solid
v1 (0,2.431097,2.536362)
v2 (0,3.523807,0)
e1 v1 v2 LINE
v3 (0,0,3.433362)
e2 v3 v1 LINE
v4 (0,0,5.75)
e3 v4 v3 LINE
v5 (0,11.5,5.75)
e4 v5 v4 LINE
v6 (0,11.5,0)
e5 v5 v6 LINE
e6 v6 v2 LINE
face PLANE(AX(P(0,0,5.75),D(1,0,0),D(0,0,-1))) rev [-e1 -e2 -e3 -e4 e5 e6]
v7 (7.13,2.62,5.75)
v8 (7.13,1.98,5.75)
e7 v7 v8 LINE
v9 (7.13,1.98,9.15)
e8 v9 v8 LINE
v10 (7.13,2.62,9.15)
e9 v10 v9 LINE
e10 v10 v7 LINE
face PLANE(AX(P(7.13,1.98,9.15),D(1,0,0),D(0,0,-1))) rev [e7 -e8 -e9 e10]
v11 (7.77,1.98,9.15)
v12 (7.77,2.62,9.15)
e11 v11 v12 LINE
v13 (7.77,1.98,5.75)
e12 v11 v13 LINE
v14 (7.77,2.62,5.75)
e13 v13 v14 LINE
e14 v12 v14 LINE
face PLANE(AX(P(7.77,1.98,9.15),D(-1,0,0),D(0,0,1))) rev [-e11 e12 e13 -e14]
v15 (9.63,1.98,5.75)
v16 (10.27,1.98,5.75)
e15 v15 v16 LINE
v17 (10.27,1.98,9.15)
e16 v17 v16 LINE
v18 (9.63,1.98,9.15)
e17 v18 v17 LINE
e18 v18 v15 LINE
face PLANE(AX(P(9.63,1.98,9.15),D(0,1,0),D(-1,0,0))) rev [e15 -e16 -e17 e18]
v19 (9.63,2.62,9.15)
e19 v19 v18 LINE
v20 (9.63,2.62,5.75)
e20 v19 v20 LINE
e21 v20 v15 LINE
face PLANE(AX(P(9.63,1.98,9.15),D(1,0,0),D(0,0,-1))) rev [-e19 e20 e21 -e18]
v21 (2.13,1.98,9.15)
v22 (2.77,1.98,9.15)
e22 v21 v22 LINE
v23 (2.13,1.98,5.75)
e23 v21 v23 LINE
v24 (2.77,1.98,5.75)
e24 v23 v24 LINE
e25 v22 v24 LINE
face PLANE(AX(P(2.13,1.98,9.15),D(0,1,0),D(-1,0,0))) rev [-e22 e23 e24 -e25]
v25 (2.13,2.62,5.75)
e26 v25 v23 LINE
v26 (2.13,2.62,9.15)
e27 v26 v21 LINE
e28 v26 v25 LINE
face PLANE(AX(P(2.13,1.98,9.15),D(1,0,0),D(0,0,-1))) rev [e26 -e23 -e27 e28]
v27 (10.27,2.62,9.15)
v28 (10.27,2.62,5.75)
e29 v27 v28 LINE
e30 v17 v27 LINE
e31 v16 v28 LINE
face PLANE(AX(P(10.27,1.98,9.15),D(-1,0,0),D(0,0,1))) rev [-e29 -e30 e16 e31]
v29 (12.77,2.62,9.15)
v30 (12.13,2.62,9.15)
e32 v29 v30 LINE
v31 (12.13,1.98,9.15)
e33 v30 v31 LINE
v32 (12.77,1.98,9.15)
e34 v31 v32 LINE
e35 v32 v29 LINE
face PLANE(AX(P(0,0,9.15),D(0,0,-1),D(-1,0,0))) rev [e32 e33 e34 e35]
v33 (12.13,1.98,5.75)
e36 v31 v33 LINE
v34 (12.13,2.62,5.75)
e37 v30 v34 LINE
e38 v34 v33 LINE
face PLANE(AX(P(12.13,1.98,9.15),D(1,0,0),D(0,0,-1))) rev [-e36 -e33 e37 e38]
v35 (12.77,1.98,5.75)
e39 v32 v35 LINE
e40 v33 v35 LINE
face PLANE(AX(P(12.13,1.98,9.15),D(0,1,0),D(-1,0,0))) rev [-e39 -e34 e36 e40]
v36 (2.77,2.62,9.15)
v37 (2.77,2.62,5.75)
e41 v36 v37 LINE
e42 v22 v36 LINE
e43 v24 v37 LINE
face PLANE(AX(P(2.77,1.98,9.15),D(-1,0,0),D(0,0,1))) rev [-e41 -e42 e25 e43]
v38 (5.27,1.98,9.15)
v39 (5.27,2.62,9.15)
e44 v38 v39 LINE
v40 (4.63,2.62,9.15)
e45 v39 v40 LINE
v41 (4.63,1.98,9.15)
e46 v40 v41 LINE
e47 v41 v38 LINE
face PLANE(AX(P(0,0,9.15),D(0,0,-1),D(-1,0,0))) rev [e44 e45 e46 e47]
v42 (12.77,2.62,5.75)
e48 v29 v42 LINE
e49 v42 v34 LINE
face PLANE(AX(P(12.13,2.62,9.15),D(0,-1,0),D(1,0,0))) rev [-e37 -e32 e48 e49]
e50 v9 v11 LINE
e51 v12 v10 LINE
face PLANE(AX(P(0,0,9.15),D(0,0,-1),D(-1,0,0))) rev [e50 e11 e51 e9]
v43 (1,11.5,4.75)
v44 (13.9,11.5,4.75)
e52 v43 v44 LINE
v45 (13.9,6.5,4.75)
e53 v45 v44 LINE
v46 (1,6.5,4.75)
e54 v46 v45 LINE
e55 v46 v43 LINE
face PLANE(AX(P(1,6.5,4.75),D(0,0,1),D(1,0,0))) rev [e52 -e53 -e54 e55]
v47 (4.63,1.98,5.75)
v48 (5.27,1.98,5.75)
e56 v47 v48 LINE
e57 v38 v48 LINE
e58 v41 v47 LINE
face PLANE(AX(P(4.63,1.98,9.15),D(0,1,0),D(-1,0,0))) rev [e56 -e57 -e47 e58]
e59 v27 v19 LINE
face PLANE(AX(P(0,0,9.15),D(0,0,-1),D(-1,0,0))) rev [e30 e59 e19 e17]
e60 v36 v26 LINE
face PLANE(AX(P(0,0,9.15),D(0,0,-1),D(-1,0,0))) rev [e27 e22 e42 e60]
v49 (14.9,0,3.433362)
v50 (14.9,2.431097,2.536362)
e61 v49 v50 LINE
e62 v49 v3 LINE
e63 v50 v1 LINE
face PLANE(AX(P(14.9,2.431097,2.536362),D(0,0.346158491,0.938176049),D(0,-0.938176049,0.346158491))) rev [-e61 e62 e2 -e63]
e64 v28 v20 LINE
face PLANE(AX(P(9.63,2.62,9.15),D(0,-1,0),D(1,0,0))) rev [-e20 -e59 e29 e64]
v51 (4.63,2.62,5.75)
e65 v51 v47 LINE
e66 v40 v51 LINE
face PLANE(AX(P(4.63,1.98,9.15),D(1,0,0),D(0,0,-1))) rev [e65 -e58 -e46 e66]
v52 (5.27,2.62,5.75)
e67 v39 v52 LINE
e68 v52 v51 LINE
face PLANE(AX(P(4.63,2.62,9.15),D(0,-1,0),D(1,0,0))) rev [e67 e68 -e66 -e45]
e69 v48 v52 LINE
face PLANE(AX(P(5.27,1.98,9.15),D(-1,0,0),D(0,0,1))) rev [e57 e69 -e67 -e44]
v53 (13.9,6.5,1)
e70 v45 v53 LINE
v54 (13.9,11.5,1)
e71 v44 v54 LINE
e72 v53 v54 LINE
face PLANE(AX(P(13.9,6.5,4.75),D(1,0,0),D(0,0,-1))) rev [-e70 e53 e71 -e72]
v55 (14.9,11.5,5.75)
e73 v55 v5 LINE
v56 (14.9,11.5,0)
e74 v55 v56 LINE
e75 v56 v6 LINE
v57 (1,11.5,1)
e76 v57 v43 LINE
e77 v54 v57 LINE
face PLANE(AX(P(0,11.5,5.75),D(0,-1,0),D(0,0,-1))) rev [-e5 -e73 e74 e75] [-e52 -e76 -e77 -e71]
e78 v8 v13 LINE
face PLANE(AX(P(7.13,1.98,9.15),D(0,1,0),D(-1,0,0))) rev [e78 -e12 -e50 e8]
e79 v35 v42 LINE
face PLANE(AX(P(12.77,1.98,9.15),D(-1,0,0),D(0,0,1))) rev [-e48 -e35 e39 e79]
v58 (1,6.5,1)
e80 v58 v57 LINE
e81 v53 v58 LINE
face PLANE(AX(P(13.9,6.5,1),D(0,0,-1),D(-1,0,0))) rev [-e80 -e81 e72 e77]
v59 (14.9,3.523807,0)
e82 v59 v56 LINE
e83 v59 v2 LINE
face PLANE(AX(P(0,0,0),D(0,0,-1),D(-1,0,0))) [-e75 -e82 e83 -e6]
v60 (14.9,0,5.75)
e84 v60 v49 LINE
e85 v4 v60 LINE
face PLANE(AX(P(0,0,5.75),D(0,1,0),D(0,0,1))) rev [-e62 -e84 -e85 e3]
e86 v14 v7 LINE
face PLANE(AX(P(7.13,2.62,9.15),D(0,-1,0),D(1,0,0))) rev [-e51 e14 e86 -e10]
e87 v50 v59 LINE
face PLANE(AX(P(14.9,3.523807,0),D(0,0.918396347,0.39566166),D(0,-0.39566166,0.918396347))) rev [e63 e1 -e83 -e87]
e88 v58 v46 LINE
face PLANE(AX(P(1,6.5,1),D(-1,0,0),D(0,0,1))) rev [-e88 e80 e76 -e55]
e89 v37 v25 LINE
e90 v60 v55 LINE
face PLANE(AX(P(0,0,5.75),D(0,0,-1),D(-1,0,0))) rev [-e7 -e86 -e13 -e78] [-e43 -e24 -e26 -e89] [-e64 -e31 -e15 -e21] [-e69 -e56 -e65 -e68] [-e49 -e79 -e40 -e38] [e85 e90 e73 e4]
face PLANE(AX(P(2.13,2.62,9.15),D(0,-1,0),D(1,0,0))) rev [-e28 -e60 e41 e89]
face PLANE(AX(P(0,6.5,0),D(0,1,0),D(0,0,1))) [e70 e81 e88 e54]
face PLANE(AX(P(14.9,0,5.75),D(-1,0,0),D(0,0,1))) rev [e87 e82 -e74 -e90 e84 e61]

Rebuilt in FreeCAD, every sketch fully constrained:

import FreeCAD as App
import Part
import Sketcher
from FreeCAD import Vector
Q = App.Units.Quantity

doc = App.newDocument("Part")
body = doc.addObject("PartDesign::Body", "Body")

# Sketch on XY plane
sketch1 = body.newObject("Sketcher::SketchObject", "Sketch")
sketch1.AttachmentSupport = (doc.getObject("XY_Plane"), [""])
sketch1.MapMode = "FlatFace"
sketch1.addGeometry([
    Part.LineSegment(Vector(0, 12, 0), Vector(0, 0, 0)),
    Part.LineSegment(Vector(0, 0, 0), Vector(15, 0, 0)),
    Part.LineSegment(Vector(15, 0, 0), Vector(15, 12, 0)),
    Part.LineSegment(Vector(15, 12, 0), Vector(0, 12, 0)),
], False)
sketch1.addConstraint([
    Sketcher.Constraint("Coincident", 0, 2, 1, 1),
    Sketcher.Constraint("Coincident", 1, 2, 2, 1),
    Sketcher.Constraint("Coincident", 2, 2, 3, 1),
    Sketcher.Constraint("Coincident", 3, 2, 0, 1),
    Sketcher.Constraint("Vertical", 0),
    Sketcher.Constraint("Horizontal", 1),
    Sketcher.Constraint("Vertical", 2),
    Sketcher.Constraint("Horizontal", 3),
    Sketcher.Constraint("Coincident", 0, 2, -1, 1),
    Sketcher.Constraint("DistanceX", 1, 1, 1, 2, Q("14.9 mm")),
    Sketcher.Constraint("DistanceY", 0, 2, 0, 1, Q("11.5 mm")),
])
pad1 = body.newObject("PartDesign::Pad", "Pad")
pad1.Profile = sketch1
pad1.Length = 5.75

# Sketch on XY plane
sketch2 = body.newObject("Sketcher::SketchObject", "Sketch001")
sketch2.AttachmentSupport = (doc.getObject("XY_Plane"), [""])
sketch2.MapMode = "FlatFace"
sketch2.AttachmentOffset = App.Placement(Vector(0, 0, 5.75), App.Rotation())
sketch2.addGeometry([
    Part.LineSegment(Vector(4.6, 2.6, 0), Vector(4.6, 2, 0)),  # 0
    Part.LineSegment(Vector(4.6, 2, 0), Vector(5.3, 2, 0)),  # 1
    Part.LineSegment(Vector(5.3, 2, 0), Vector(5.3, 2.6, 0)),  # 2
    Part.LineSegment(Vector(5.3, 2.6, 0), Vector(4.6, 2.6, 0)),  # 3
    Part.LineSegment(Vector(2.1, 2.6, 0), Vector(2.1, 2, 0)),  # 4
    Part.LineSegment(Vector(2.1, 2, 0), Vector(2.8, 2, 0)),  # 5
    Part.LineSegment(Vector(2.8, 2, 0), Vector(2.8, 2.6, 0)),  # 6
    Part.LineSegment(Vector(2.8, 2.6, 0), Vector(2.1, 2.6, 0)),  # 7
    Part.LineSegment(Vector(7.1, 2.6, 0), Vector(7.1, 2, 0)),  # 8
    Part.LineSegment(Vector(7.1, 2, 0), Vector(7.8, 2, 0)),  # 9
    Part.LineSegment(Vector(7.8, 2, 0), Vector(7.8, 2.6, 0)),  # 10
    Part.LineSegment(Vector(7.8, 2.6, 0), Vector(7.1, 2.6, 0)),  # 11
    Part.LineSegment(Vector(9.6, 2.6, 0), Vector(9.6, 2, 0)),  # 12
    Part.LineSegment(Vector(9.6, 2, 0), Vector(10.3, 2, 0)),  # 13
    Part.LineSegment(Vector(10.3, 2, 0), Vector(10.3, 2.6, 0)),  # 14
    Part.LineSegment(Vector(10.3, 2.6, 0), Vector(9.6, 2.6, 0)),  # 15
    Part.LineSegment(Vector(12.1, 2.6, 0), Vector(12.1, 2, 0)),  # 16
    Part.LineSegment(Vector(12.1, 2, 0), Vector(12.8, 2, 0)),  # 17
    Part.LineSegment(Vector(12.8, 2, 0), Vector(12.8, 2.6, 0)),  # 18
    Part.LineSegment(Vector(12.8, 2.6, 0), Vector(12.1, 2.6, 0)),  # 19
], False)
sketch2.addConstraint([
    Sketcher.Constraint("Coincident", 0, 2, 1, 1),
    Sketcher.Constraint("Coincident", 1, 2, 2, 1),
    Sketcher.Constraint("Coincident", 2, 2, 3, 1),
    Sketcher.Constraint("Coincident", 3, 2, 0, 1),
    Sketcher.Constraint("Coincident", 4, 2, 5, 1),
    Sketcher.Constraint("Coincident", 5, 2, 6, 1),
    Sketcher.Constraint("Coincident", 6, 2, 7, 1),
    Sketcher.Constraint("Coincident", 7, 2, 4, 1),
    Sketcher.Constraint("Coincident", 8, 2, 9, 1),
    Sketcher.Constraint("Coincident", 9, 2, 10, 1),
    Sketcher.Constraint("Coincident", 10, 2, 11, 1),
    Sketcher.Constraint("Coincident", 11, 2, 8, 1),
    Sketcher.Constraint("Coincident", 12, 2, 13, 1),
    Sketcher.Constraint("Coincident", 13, 2, 14, 1),
    Sketcher.Constraint("Coincident", 14, 2, 15, 1),
    Sketcher.Constraint("Coincident", 15, 2, 12, 1),
    Sketcher.Constraint("Coincident", 16, 2, 17, 1),
    Sketcher.Constraint("Coincident", 17, 2, 18, 1),
    Sketcher.Constraint("Coincident", 18, 2, 19, 1),
    Sketcher.Constraint("Coincident", 19, 2, 16, 1),
    Sketcher.Constraint("Vertical", 0),
    Sketcher.Constraint("Horizontal", 1),
    Sketcher.Constraint("Vertical", 2),
    Sketcher.Constraint("Horizontal", 3),
    Sketcher.Constraint("Vertical", 4),
    Sketcher.Constraint("Horizontal", 5),
    Sketcher.Constraint("Vertical", 6),
    Sketcher.Constraint("Horizontal", 7),
    Sketcher.Constraint("Vertical", 8),
    Sketcher.Constraint("Horizontal", 9),
    Sketcher.Constraint("Vertical", 10),
    Sketcher.Constraint("Horizontal", 11),
    Sketcher.Constraint("Vertical", 12),
    Sketcher.Constraint("Horizontal", 13),
    Sketcher.Constraint("Vertical", 14),
    Sketcher.Constraint("Horizontal", 15),
    Sketcher.Constraint("Vertical", 16),
    Sketcher.Constraint("Horizontal", 17),
    Sketcher.Constraint("Vertical", 18),
    Sketcher.Constraint("Horizontal", 19),
    Sketcher.Constraint("Horizontal", 1, 2, 4, 2),
    Sketcher.Constraint("Horizontal", 3, 2, 6, 2),
    Sketcher.Constraint("Horizontal", 5, 2, 8, 2),
    Sketcher.Constraint("Horizontal", 7, 2, 10, 2),
    Sketcher.Constraint("Horizontal", 9, 2, 12, 2),
    Sketcher.Constraint("Horizontal", 11, 2, 14, 2),
    Sketcher.Constraint("Horizontal", 13, 2, 16, 2),
    Sketcher.Constraint("Horizontal", 15, 2, 18, 2),
    Sketcher.Constraint("Equal", 3, 5),
    Sketcher.Constraint("Equal", 7, 9),
    Sketcher.Constraint("Equal", 11, 13),
    Sketcher.Constraint("Equal", 15, 17),
    Sketcher.Constraint("Equal", 19, 0),
    Sketcher.Constraint("DistanceX", 1, 1, 1, 2, Q("0.64 mm")),
    Sketcher.Constraint("DistanceX", 4, 2, 0, 2, Q("2.5 mm")),
    Sketcher.Constraint("DistanceX", 0, 2, 8, 2, Q("2.5 mm")),
    Sketcher.Constraint("DistanceX", 8, 2, 12, 2, Q("2.5 mm")),
    Sketcher.Constraint("DistanceX", 12, 2, 16, 2, Q("2.5 mm")),
    Sketcher.Constraint("DistanceX", -1, 1, 0, 2, Q("4.63 mm")),
    Sketcher.Constraint("DistanceY", -1, 1, 0, 2, Q("1.98 mm")),
])
pad2 = body.newObject("PartDesign::Pad", "Pad001")
pad2.Profile = sketch2
pad2.Length = 3.4

# Sketch on YZ plane
sketch3 = body.newObject("Sketcher::SketchObject", "Sketch002")
sketch3.AttachmentSupport = (doc.getObject("YZ_Plane"), [""])
sketch3.MapMode = "FlatFace"
sketch3.addGeometry([
    Part.LineSegment(Vector(3.5, 0, 0), Vector(0, 0, 0)),
    Part.LineSegment(Vector(0, 0, 0), Vector(0, 3.4, 0)),
    Part.LineSegment(Vector(0, 3.4, 0), Vector(2.4, 2.5, 0)),
    Part.LineSegment(Vector(2.4, 2.5, 0), Vector(3.5, 0, 0)),
], False)
sketch3.addConstraint([
    Sketcher.Constraint("Coincident", 0, 2, 1, 1),
    Sketcher.Constraint("Coincident", 1, 2, 2, 1),
    Sketcher.Constraint("Coincident", 2, 2, 3, 1),
    Sketcher.Constraint("Coincident", 3, 2, 0, 1),
    Sketcher.Constraint("Horizontal", 0),
    Sketcher.Constraint("Vertical", 1),
    Sketcher.Constraint("Coincident", 0, 2, -1, 1),
    Sketcher.Constraint("DistanceY", 2, 2, 1, 2, Q("0.897001 mm")),
    Sketcher.Constraint("Distance", 2, Q("2.591301 mm")),
    Sketcher.Constraint("Distance", 3, Q("2.761729 mm")),
    Sketcher.Constraint("DistanceX", 0, 2, 0, 1, Q("3.523807 mm")),
])
pocket1 = body.newObject("PartDesign::Pocket", "Pocket")
pocket1.Profile = sketch3
pocket1.Type = "ThroughAll"
pocket1.Reversed = True

# Sketch on XZ plane
sketch4 = body.newObject("Sketcher::SketchObject", "Sketch003")
sketch4.AttachmentSupport = (doc.getObject("XZ_Plane"), [""])
sketch4.MapMode = "FlatFace"
sketch4.AttachmentOffset = App.Placement(Vector(0, 0, -11.5), App.Rotation())
sketch4.addGeometry([
    Part.LineSegment(Vector(1, 1, 0), Vector(1, 4.8, 0)),
    Part.LineSegment(Vector(1, 4.8, 0), Vector(13.9, 4.8, 0)),
    Part.LineSegment(Vector(13.9, 4.8, 0), Vector(13.9, 1, 0)),
    Part.LineSegment(Vector(13.9, 1, 0), Vector(1, 1, 0)),
], False)
sketch4.addConstraint([
    Sketcher.Constraint("Coincident", 0, 2, 1, 1),
    Sketcher.Constraint("Coincident", 1, 2, 2, 1),
    Sketcher.Constraint("Coincident", 2, 2, 3, 1),
    Sketcher.Constraint("Coincident", 3, 2, 0, 1),
    Sketcher.Constraint("Vertical", 0),
    Sketcher.Constraint("Horizontal", 1),
    Sketcher.Constraint("Vertical", 2),
    Sketcher.Constraint("Horizontal", 3),
    Sketcher.Constraint("DistanceX", 1, 1, 1, 2, Q("12.9 mm")),
    Sketcher.Constraint("DistanceX", -1, 1, 0, 2, Q("1 mm")),
    Sketcher.Constraint("DistanceY", -1, 1, 2, 2, Q("1 mm")),
    Sketcher.Constraint("DistanceY", 0, 1, 0, 2, Q("3.75 mm")),
])
pocket2 = body.newObject("PartDesign::Pocket", "Pocket001")
pocket2.Profile = sketch4
pocket2.Length = 5
pocket2.Reversed = True

doc.recompute()
